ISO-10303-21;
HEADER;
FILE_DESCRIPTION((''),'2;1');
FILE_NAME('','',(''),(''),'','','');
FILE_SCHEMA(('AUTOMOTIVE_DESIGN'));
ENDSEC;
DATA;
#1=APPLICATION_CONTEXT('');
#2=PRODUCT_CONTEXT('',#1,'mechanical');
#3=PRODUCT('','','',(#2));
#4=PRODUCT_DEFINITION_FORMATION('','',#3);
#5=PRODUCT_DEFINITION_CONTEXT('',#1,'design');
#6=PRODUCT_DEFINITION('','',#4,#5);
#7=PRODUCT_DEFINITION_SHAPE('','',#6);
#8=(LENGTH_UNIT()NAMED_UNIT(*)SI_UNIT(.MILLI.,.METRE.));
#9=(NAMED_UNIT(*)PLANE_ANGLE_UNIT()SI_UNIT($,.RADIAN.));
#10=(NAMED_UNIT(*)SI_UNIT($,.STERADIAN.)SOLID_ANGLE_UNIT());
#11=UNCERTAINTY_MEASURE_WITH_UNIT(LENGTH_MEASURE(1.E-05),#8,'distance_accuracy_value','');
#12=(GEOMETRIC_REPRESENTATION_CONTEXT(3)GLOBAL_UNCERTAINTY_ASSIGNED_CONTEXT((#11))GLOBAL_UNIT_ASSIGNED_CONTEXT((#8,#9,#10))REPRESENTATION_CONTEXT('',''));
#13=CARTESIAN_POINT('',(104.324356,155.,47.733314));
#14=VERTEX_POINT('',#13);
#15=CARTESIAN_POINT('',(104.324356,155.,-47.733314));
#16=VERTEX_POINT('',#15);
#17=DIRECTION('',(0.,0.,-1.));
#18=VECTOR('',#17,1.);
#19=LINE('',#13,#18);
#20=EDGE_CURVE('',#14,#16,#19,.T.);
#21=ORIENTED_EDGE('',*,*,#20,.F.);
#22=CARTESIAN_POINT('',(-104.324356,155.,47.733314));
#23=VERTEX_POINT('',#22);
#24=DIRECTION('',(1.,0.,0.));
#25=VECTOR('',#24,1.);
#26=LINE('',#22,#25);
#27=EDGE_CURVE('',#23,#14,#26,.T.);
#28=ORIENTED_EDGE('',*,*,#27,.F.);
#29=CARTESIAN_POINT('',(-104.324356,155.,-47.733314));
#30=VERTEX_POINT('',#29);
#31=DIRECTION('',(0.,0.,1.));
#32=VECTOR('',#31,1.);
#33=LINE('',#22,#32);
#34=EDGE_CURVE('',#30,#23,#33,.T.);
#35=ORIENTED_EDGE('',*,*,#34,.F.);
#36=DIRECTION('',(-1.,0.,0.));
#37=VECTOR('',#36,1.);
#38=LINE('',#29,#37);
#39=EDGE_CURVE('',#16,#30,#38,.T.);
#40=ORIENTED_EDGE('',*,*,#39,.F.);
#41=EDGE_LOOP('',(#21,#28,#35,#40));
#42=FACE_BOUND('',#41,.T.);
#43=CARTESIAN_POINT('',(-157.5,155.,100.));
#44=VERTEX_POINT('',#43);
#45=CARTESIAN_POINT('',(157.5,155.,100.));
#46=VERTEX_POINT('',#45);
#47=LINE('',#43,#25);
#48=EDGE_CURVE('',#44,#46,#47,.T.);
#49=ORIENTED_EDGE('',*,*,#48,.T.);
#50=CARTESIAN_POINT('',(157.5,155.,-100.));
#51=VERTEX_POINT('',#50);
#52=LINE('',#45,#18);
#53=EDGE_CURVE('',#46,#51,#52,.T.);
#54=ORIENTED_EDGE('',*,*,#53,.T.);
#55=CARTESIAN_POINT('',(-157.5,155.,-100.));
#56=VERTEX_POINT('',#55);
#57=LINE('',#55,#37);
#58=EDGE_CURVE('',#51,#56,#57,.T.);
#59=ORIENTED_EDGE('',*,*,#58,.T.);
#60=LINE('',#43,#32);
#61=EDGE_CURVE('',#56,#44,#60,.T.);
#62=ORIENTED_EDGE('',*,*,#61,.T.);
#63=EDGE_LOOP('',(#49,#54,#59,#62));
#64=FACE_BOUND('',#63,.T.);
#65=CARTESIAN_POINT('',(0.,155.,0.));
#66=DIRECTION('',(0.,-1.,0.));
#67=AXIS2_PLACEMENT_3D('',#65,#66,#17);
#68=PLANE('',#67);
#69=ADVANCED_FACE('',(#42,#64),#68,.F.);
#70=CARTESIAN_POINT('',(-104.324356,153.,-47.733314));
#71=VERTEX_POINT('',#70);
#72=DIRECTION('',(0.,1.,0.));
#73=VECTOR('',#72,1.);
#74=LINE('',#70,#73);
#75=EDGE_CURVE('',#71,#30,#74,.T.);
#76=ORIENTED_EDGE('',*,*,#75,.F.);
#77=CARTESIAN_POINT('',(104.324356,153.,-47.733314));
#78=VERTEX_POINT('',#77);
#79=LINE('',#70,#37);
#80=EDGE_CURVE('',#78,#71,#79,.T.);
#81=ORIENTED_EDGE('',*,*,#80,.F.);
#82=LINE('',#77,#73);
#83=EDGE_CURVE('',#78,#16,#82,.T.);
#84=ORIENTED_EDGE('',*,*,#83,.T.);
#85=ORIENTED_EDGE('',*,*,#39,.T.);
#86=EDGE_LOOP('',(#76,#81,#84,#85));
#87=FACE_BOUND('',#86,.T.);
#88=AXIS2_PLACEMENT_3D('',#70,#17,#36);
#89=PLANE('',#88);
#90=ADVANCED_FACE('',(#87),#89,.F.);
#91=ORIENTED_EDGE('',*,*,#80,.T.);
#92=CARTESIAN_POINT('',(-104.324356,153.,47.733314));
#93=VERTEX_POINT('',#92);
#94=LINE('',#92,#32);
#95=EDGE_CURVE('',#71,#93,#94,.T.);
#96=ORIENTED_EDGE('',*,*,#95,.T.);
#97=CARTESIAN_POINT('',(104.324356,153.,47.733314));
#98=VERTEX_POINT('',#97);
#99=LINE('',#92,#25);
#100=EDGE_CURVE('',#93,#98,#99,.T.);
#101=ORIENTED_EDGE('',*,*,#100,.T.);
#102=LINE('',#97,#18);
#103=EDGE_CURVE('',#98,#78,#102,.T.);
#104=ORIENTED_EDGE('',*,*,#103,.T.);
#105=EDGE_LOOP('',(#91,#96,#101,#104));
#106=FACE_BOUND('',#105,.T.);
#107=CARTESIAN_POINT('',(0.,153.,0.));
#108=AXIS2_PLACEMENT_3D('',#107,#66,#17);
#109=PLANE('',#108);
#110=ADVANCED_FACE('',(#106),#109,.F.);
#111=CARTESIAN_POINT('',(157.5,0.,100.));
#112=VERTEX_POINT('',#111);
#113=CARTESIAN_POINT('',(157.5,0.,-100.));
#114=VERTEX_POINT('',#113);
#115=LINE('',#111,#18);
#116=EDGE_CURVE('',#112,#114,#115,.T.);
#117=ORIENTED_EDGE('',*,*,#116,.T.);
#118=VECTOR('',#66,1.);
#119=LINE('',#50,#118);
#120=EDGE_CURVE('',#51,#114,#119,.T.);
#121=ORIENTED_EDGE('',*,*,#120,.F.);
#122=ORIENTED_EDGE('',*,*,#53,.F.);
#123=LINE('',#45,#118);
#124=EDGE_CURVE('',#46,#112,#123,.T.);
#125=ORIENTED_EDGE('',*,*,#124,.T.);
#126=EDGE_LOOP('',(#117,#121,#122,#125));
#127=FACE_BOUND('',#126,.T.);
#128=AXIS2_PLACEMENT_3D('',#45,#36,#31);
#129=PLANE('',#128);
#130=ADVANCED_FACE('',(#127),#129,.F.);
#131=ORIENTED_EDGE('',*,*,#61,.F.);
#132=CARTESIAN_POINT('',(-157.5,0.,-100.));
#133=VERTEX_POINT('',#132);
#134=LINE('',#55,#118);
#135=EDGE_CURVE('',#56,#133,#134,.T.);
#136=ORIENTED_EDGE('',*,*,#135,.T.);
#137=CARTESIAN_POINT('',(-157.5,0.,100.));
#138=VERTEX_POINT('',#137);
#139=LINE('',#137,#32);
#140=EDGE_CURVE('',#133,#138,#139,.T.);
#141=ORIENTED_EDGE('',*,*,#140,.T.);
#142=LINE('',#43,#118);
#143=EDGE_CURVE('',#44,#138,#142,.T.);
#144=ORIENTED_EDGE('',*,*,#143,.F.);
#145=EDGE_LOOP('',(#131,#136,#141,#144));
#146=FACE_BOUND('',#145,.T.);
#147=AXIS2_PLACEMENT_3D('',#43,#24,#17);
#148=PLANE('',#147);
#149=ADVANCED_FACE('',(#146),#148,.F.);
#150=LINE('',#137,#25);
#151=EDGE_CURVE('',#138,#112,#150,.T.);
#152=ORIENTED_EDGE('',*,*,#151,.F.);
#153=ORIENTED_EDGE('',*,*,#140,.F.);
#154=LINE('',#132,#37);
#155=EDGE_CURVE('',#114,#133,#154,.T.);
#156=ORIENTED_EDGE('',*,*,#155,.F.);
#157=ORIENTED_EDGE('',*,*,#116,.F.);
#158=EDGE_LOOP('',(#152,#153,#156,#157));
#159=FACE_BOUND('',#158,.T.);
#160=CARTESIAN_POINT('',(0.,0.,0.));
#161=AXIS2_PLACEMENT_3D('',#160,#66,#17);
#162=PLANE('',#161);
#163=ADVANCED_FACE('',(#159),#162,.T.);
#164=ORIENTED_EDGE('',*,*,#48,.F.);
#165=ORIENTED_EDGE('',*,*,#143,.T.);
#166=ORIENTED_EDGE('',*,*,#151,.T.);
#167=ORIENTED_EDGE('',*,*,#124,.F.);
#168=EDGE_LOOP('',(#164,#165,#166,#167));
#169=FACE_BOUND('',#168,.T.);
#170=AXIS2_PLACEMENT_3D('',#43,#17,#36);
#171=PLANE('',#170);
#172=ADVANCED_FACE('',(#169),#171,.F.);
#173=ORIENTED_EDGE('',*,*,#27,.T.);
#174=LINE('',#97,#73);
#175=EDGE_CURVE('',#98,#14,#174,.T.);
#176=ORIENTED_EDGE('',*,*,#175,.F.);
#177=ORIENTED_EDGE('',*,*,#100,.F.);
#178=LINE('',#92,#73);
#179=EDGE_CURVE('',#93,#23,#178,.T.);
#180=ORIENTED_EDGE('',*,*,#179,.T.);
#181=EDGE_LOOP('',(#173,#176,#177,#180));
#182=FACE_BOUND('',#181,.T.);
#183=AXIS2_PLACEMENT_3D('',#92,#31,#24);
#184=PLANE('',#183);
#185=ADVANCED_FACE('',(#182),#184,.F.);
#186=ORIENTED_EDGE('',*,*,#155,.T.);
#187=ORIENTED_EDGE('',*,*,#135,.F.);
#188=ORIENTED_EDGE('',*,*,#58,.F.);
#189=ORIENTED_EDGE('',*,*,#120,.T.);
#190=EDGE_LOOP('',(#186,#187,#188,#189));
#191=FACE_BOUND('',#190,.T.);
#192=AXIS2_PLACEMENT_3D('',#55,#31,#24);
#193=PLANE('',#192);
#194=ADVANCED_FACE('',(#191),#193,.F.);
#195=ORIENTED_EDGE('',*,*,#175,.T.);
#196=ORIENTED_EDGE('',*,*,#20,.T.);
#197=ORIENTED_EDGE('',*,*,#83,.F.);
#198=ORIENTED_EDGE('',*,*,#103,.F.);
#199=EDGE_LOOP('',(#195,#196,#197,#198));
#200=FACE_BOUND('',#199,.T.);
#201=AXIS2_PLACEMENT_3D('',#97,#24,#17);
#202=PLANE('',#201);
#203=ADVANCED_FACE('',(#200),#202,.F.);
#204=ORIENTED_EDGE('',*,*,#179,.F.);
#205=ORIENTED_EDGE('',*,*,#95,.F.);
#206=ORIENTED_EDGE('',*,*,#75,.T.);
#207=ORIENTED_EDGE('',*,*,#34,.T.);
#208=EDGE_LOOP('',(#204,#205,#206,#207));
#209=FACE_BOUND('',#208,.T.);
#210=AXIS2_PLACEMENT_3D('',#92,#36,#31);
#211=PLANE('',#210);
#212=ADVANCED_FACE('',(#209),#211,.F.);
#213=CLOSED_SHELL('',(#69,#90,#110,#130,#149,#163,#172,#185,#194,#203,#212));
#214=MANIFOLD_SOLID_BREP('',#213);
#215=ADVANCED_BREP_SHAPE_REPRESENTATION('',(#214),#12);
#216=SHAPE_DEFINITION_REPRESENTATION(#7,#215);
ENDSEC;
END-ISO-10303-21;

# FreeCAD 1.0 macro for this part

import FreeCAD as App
import Part
import Sketcher
from FreeCAD import Vector

doc = App.newDocument("Part")
body = doc.addObject("PartDesign::Body", "Body")

# Sketch on XZ plane
sketch1 = doc.addObject("Sketcher::SketchObject", "Sketch")
body.addObject(sketch1)
sketch1.AttachmentSupport = (doc.XZ_Plane, [""])
sketch1.MapMode = "FlatFace"
sketch1.addGeometry([
    Part.LineSegment(Vector(-158, -100, 0), Vector(-158, 100, 0)),
    Part.LineSegment(Vector(-158, 100, 0), Vector(158, 100, 0)),
    Part.LineSegment(Vector(158, 100, 0), Vector(158, -100, 0)),
    Part.LineSegment(Vector(158, -100, 0), Vector(-158, -100, 0)),
], False)
sketch1.addConstraint([
    Sketcher.Constraint("Coincident", 0, 2, 1, 1),
    Sketcher.Constraint("Coincident", 1, 2, 2, 1),
    Sketcher.Constraint("Coincident", 2, 2, 3, 1),
    Sketcher.Constraint("Coincident", 3, 2, 0, 1),
    Sketcher.Constraint("Vertical", 0),
    Sketcher.Constraint("Horizontal", 1),
    Sketcher.Constraint("Vertical", 2),
    Sketcher.Constraint("Horizontal", 3),
    Sketcher.Constraint("Symmetric", 0, 2, 2, 2, -1, 1),
    Sketcher.Constraint("DistanceX", 1, 1, 1, 2, 315.0),
    Sketcher.Constraint("DistanceY", 0, 1, 0, 2, 200.0),
])
pad1 = doc.addObject("PartDesign::Pad", "Pad")
body.addObject(pad1)
pad1.Profile = sketch1
pad1.Length = 155
pad1.Reversed = True

# Sketch on XZ plane
sketch2 = doc.addObject("Sketcher::SketchObject", "Sketch001")
body.addObject(sketch2)
sketch2.AttachmentSupport = (doc.XZ_Plane, [""])
sketch2.MapMode = "FlatFace"
sketch2.AttachmentOffset = App.Placement(Vector(0, 0, -155), App.Rotation())
sketch2.addGeometry([
    Part.LineSegment(Vector(-104, -48, 0), Vector(-104, 48, 0)),
    Part.LineSegment(Vector(-104, 48, 0), Vector(104, 48, 0)),
    Part.LineSegment(Vector(104, 48, 0), Vector(104, -48, 0)),
    Part.LineSegment(Vector(104, -48, 0), Vector(-104, -48, 0)),
], False)
sketch2.addConstraint([
    Sketcher.Constraint("Coincident", 0, 2, 1, 1),
    Sketcher.Constraint("Coincident", 1, 2, 2, 1),
    Sketcher.Constraint("Coincident", 2, 2, 3, 1),
    Sketcher.Constraint("Coincident", 3, 2, 0, 1),
    Sketcher.Constraint("Vertical", 0),
    Sketcher.Constraint("Horizontal", 1),
    Sketcher.Constraint("Vertical", 2),
    Sketcher.Constraint("Horizontal", 3),
    Sketcher.Constraint("Symmetric", 0, 2, 2, 2, -1, 1),
    Sketcher.Constraint("DistanceX", 1, 1, 1, 2, 208.648712),
    Sketcher.Constraint("DistanceY", 0, 1, 0, 2, 95.466628),
])
pocket1 = doc.addObject("PartDesign::Pocket", "Pocket")
body.addObject(pocket1)
pocket1.Profile = sketch2
pocket1.Length = 2
pocket1.Reversed = True

doc.recompute()
